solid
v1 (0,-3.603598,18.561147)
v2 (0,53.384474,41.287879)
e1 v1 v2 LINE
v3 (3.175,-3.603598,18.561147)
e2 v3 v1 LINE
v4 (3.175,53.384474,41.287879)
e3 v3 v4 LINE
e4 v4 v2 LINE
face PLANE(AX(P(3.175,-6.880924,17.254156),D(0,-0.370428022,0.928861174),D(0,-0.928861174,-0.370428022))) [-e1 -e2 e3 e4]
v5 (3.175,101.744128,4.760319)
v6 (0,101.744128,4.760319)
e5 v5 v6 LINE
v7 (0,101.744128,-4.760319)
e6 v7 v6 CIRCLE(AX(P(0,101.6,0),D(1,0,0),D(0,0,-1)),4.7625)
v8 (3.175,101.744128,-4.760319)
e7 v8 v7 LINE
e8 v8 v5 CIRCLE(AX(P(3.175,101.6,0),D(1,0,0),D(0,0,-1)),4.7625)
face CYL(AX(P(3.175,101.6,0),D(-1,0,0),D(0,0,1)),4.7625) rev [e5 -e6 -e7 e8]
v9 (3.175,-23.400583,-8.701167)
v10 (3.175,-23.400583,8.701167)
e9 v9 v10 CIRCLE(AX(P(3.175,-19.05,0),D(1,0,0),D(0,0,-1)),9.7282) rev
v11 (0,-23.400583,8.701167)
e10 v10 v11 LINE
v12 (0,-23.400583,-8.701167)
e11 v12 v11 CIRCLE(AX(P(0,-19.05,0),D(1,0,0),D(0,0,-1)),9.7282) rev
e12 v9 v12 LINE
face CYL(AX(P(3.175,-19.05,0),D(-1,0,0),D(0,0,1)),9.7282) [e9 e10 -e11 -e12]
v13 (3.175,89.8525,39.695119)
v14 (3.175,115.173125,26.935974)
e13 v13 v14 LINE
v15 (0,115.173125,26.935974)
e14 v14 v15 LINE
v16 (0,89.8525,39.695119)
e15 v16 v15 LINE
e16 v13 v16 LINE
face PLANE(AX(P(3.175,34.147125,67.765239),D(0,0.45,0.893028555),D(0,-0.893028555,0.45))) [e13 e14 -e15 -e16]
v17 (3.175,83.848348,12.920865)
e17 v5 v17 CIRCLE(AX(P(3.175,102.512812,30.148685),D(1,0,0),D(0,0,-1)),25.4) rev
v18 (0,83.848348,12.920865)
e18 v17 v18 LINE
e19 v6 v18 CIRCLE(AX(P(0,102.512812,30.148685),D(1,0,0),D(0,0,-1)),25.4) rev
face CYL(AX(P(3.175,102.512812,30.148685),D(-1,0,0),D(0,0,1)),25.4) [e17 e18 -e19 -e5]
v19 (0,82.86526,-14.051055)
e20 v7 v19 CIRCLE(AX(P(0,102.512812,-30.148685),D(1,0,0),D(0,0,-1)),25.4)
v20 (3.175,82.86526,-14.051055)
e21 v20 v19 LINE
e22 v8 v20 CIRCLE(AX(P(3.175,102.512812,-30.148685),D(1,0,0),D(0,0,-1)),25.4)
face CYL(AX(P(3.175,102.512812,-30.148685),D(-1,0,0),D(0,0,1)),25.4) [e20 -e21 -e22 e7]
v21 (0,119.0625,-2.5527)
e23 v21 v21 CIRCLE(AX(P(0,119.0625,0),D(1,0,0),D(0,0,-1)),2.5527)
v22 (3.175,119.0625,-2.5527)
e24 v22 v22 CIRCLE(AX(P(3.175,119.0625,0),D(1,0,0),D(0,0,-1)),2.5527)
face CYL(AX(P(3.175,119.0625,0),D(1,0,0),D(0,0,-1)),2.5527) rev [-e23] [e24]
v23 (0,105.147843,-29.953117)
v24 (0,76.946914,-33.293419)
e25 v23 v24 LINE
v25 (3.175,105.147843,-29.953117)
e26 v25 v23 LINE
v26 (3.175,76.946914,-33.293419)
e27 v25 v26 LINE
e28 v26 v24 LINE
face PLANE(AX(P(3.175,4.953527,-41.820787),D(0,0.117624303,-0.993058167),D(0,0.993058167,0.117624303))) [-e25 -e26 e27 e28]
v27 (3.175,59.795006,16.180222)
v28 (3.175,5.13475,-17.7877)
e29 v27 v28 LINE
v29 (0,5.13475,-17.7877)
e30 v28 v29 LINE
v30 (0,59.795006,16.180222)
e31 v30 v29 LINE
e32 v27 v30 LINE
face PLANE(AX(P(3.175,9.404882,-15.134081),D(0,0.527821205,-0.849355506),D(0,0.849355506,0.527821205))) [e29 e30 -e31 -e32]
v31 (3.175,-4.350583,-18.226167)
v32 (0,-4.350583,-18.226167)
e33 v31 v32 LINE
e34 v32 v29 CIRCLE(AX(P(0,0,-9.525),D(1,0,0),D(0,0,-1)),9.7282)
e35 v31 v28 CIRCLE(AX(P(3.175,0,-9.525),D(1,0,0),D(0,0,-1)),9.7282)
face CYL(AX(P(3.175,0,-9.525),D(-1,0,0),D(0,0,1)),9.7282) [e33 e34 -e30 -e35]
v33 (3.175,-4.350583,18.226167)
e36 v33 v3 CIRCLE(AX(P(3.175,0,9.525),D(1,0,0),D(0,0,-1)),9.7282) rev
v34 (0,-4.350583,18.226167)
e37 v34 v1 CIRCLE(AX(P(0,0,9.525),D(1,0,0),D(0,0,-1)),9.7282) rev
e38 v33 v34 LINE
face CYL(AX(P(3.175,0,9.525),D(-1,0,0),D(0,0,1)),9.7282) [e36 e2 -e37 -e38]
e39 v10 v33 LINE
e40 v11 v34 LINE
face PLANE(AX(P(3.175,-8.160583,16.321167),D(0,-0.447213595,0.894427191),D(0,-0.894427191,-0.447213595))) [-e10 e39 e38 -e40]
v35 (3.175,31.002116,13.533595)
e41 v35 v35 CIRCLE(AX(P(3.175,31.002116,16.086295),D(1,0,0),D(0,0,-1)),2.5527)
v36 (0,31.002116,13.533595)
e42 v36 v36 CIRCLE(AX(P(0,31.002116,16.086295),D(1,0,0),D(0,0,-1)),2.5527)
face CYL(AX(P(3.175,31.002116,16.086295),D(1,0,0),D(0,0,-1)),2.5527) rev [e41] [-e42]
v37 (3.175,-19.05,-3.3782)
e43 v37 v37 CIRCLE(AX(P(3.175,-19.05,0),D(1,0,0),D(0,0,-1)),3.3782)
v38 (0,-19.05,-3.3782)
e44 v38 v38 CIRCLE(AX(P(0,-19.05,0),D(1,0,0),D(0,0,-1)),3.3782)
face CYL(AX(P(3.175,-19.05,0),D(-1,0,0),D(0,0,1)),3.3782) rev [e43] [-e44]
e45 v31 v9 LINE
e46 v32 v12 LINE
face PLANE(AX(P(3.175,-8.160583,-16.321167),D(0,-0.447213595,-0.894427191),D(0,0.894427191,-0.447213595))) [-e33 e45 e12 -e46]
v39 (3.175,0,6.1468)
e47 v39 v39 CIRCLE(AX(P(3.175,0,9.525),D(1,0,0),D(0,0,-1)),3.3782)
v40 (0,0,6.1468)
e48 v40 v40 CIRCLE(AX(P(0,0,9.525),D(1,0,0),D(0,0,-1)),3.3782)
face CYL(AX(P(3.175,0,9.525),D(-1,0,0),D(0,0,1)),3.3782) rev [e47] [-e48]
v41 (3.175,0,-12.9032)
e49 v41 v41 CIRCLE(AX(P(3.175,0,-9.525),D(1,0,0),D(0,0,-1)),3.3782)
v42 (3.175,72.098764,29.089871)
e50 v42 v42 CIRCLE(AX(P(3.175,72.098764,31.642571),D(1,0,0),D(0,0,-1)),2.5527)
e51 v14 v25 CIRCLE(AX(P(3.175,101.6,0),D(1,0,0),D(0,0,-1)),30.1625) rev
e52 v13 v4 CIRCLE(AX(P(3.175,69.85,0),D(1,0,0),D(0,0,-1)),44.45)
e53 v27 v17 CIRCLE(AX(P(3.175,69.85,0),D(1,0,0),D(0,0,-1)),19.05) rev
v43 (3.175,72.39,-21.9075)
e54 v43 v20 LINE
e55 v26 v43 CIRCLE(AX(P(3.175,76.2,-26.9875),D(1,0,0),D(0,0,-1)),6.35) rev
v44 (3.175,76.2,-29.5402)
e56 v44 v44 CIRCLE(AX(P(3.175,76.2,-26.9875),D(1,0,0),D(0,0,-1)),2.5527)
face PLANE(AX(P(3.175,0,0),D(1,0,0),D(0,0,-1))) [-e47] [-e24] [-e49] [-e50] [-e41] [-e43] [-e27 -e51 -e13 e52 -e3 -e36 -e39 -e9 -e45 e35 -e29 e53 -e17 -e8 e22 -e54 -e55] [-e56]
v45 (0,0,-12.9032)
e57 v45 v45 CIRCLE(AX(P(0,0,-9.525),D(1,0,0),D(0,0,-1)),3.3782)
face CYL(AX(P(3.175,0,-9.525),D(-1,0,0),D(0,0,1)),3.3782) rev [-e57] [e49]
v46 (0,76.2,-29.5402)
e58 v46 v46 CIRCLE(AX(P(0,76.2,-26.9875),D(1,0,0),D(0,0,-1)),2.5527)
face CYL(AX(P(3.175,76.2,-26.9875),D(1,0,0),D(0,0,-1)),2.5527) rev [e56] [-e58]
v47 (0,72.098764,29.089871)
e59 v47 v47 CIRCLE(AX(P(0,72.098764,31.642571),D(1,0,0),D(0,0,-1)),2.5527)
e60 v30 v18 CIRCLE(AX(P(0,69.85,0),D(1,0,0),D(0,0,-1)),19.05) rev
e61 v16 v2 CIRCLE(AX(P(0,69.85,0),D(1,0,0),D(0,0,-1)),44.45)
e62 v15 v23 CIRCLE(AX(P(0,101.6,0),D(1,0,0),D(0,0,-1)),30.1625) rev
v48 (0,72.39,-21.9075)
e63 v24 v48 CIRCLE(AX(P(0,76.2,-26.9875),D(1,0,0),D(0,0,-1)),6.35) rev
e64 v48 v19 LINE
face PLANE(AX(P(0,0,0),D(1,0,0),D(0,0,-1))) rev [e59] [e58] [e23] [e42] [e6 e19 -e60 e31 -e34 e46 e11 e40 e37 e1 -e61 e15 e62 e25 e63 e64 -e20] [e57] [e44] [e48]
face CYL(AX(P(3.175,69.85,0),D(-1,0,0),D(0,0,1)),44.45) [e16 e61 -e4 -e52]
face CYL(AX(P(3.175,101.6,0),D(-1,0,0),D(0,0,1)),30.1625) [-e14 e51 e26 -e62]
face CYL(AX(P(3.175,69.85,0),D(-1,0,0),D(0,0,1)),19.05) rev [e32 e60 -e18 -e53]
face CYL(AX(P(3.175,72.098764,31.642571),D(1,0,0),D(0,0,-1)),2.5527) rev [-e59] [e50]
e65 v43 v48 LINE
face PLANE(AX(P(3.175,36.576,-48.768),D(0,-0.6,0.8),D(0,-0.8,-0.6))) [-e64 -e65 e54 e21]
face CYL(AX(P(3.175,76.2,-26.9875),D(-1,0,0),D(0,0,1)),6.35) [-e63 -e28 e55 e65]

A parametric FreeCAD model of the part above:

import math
import FreeCAD as App
import Part
import Sketcher

V = App.Vector
Q = App.Units.Quantity

doc = App.newDocument("Part")
body = doc.addObject("PartDesign::Body", "Body")

# Sketch on YZ plane
sketch1 = body.newObject("Sketcher::SketchObject", "Sketch")
sketch1.AttachmentSupport = (doc.getObject("YZ_Plane"), [""])
sketch1.MapMode = "FlatFace"
sketch1.addGeometry(Part.LineSegment(V(5.1, -17.8, 0), V(59.8, 16.2, 0)), False)
sketch1.addGeometry(Part.ArcOfCircle(Part.Circle(V(69.8, 0, 0), V(0, 0, 1), 19.1), math.radians(43), math.radians(122)), False)
sketch1.addGeometry(Part.ArcOfCircle(Part.Circle(V(102.5, 30.1, 0), V(0, 0, 1), 25.4), math.radians(-137), math.radians(-92)), False)
sketch1.addGeometry(Part.ArcOfCircle(Part.Circle(V(101.6, 0, 0), V(0, 0, 1), 4.8), math.radians(-88), math.radians(88)), False)
sketch1.addGeometry(Part.ArcOfCircle(Part.Circle(V(102.5, -30.1, 0), V(0, 0, 1), 25.4), math.radians(92), math.radians(141)), False)
sketch1.addGeometry(Part.LineSegment(V(82.9, -14.1, 0), V(72.4, -21.9, 0)), False)
sketch1.addGeometry(Part.ArcOfCircle(Part.Circle(V(76.2, -27, 0), V(0, 0, 1), 6.3), math.radians(127), math.radians(277)), False)
sketch1.addGeometry(Part.LineSegment(V(76.9, -33.3, 0), V(105.1, -30, 0)), False)
sketch1.addGeometry(Part.ArcOfCircle(Part.Circle(V(101.6, 0, 0), V(0, 0, 1), 30.2), math.radians(-83), math.radians(63)), False)
sketch1.addGeometry(Part.LineSegment(V(115.2, 26.9, 0), V(89.9, 39.7, 0)), False)
sketch1.addGeometry(Part.ArcOfCircle(Part.Circle(V(69.9, 0, 0), V(0, 0, 1), 44.5), math.radians(63), math.radians(112)), False)
sketch1.addGeometry(Part.LineSegment(V(53.4, 41.3, 0), V(-3.6, 18.6, 0)), False)
sketch1.addGeometry(Part.ArcOfCircle(Part.Circle(V(0, 9.5, 0), V(0, 0, 1), 9.7), math.radians(111.74), math.radians(116.57)), False)
sketch1.addGeometry(Part.LineSegment(V(-4.4, 18.2, 0), V(-23.4, 8.7, 0)), False)
sketch1.addGeometry(Part.ArcOfCircle(Part.Circle(V(-19.1, 0, 0), V(0, 0, 1), 9.7), math.radians(117), math.radians(243)), False)
sketch1.addGeometry(Part.LineSegment(V(-23.4, -8.7, 0), V(-4.4, -18.2, 0)), False)
sketch1.addGeometry(Part.ArcOfCircle(Part.Circle(V(0, -9.5, 0), V(0, 0, 1), 9.7), math.radians(-117), math.radians(-58)), False)
sketch1.addGeometry(Part.Circle(V(-19.1, 0, 0), V(0, 0, 1), 3.4), False)
sketch1.addGeometry(Part.Circle(V(0, -9.5, 0), V(0, 0, 1), 3.4), False)
sketch1.addGeometry(Part.Circle(V(0, 9.5, 0), V(0, 0, 1), 3.4), False)
sketch1.addConstraint(Sketcher.Constraint("Tangent", 0, 2, 1, 2))
sketch1.addConstraint(Sketcher.Constraint("Tangent", 1, 1, 2, 1))
sketch1.addConstraint(Sketcher.Constraint("Tangent", 2, 2, 3, 2))
sketch1.addConstraint(Sketcher.Constraint("Tangent", 3, 1, 4, 1))
sketch1.addConstraint(Sketcher.Constraint("Coincident", 4, 2, 5, 1))
sketch1.addConstraint(Sketcher.Constraint("Tangent", 5, 2, 6, 1))
sketch1.addConstraint(Sketcher.Constraint("Tangent", 6, 2, 7, 1))
sketch1.addConstraint(Sketcher.Constraint("Tangent", 7, 2, 8, 1))
sketch1.addConstraint(Sketcher.Constraint("Tangent", 8, 2, 9, 1))
sketch1.addConstraint(Sketcher.Constraint("Tangent", 9, 2, 10, 1))
sketch1.addConstraint(Sketcher.Constraint("Tangent", 10, 2, 11, 1))
sketch1.addConstraint(Sketcher.Constraint("Tangent", 11, 2, 12, 1))
sketch1.addConstraint(Sketcher.Constraint("Tangent", 12, 2, 13, 1))
sketch1.addConstraint(Sketcher.Constraint("Tangent", 13, 2, 14, 1))
sketch1.addConstraint(Sketcher.Constraint("Tangent", 14, 2, 15, 1))
sketch1.addConstraint(Sketcher.Constraint("Tangent", 15, 2, 16, 1))
sketch1.addConstraint(Sketcher.Constraint("Tangent", 16, 2, 0, 1))
sketch1.addConstraint(Sketcher.Constraint("Coincident", 8, 3, 3, 3))
sketch1.addConstraint(Sketcher.Constraint("Coincident", 10, 3, 1, 3))
sketch1.addConstraint(Sketcher.Constraint("Coincident", 17, 3, 14, 3))
sketch1.addConstraint(Sketcher.Constraint("Coincident", 18, 3, 16, 3))
sketch1.addConstraint(Sketcher.Constraint("Coincident", 19, 3, 12, 3))
sketch1.addConstraint(Sketcher.Constraint("Equal", 2, 4))
sketch1.addConstraint(Sketcher.Constraint("Equal", 12, 14))
sketch1.addConstraint(Sketcher.Constraint("Equal", 14, 16))
sketch1.addConstraint(Sketcher.Constraint("Equal", 17, 18))
sketch1.addConstraint(Sketcher.Constraint("Equal", 18, 19))
sketch1.addConstraint(Sketcher.Constraint("Symmetric", 12, 3, 16, 3, -1, 1))
sketch1.addConstraint(Sketcher.Constraint("Symmetric", 2, 3, 4, 3, -1))
sketch1.addConstraint(Sketcher.Constraint("Symmetric", 13, 2, 14, 2, -1))
sketch1.addConstraint(Sketcher.Constraint("PointOnObject", 1, 3, -1))
sketch1.addConstraint(Sketcher.Constraint("Radius", 2, Q("1 in")))
sketch1.addConstraint(Sketcher.Constraint("Radius", 1, Q("0.75 in")))
sketch1.addConstraint(Sketcher.Constraint("Radius", 6, Q("0.25 in")))
sketch1.addConstraint(Sketcher.Constraint("Radius", 10, Q("1.75 in")))
sketch1.addConstraint(Sketcher.Constraint("Diameter", 17, Q("0.266 in")))
sketch1.addConstraint(Sketcher.Constraint("DistanceX", -1, 1, 3, 3, Q("4 in")))
sketch1.addConstraint(Sketcher.Constraint("DistanceX", -1, 1, 6, 3, Q("3 in")))
sketch1.addConstraint(Sketcher.Constraint("Radius", 3, Q("0.1875 in")))
sketch1.addConstraint(Sketcher.Constraint("Radius", 8, Q("1.1875 in")))
sketch1.addConstraint(Sketcher.Constraint("Radius", 12, Q("0.383 in")))
sketch1.addConstraint(Sketcher.Constraint("DistanceX", 14, 3, 1, 3, Q("3.5 in")))
sketch1.addConstraint(Sketcher.Constraint("DistanceY", 6, 3, 5, 2, Q("0.2 in")))
sketch1.addConstraint(Sketcher.Constraint("DistanceX", 10, 3, 5, 2, Q("0.1 in")))
sketch1.addConstraint(Sketcher.Constraint("DistanceY", 16, 3, 12, 3, Q("0.75 in")))
sketch1.addConstraint(Sketcher.Constraint("DistanceY", 6, 3, -1, 1, Q("1.0625 in")))
pad1 = body.newObject("PartDesign::Pad", "Pad")
pad1.Profile = sketch1
pad1.Length = Q("0.125 in")

# Sketch on YZ plane
sketch2 = body.newObject("Sketcher::SketchObject", "Sketch001")
sketch2.AttachmentSupport = (doc.getObject("YZ_Plane"), [""])
sketch2.MapMode = "FlatFace"
sketch2.AttachmentOffset = App.Placement(V(0, 0, 0.125 * 25.4), App.Rotation())
sketch2.addGeometry(Part.Circle(V(31, 16.1, 0), V(0, 0, 1), 2.6), False)
sketch2.addGeometry(Part.Circle(V(72.1, 31.6, 0), V(0, 0, 1), 2.6), False)
sketch2.addGeometry(Part.Circle(V(119.1, 0, 0), V(0, 0, 1), 2.6), False)
sketch2.addGeometry(Part.Circle(V(76.2, -27, 0), V(0, 0, 1), 2.6), False)
sketch2.addConstraint(Sketcher.Constraint("Equal", 0, 1))
sketch2.addConstraint(Sketcher.Constraint("Equal", 1, 2))
sketch2.addConstraint(Sketcher.Constraint("Equal", 2, 3))
sketch2.addConstraint(Sketcher.Constraint("PointOnObject", 2, 3, -1))
sketch2.addConstraint(Sketcher.Constraint("Diameter", 0, Q("0.201 in")))
sketch2.addConstraint(Sketcher.Constraint("DistanceX", -1, 1, 3, 3, Q("3 in")))
sketch2.addConstraint(Sketcher.Constraint("DistanceX", -1, 1, 2, 3, Q("4.6875 in")))
sketch2.addConstraint(Sketcher.Constraint("DistanceY", 3, 3, -1, 1, Q("1.0625 in")))
sketch2.addConstraint(Sketcher.Constraint("DistanceY", -1, 1, 1, 3, 31.642571))
sketch2.addConstraint(Sketcher.Constraint("DistanceX", -1, 1, 0, 3, 31.002116))
sketch2.addConstraint(Sketcher.Constraint("DistanceY", -1, 1, 0, 3, 16.086295))
sketch2.addConstraint(Sketcher.Constraint("DistanceX", -1, 1, 1, 3, 72.098764))
doc.recompute()
hole = body.newObject("PartDesign::Hole", "Hole")
hole.Profile = sketch2
hole.ThreadType = "None"
hole.Diameter = Q("0.201 in")
hole.DepthType = "ThroughAll"

doc.recompute()
